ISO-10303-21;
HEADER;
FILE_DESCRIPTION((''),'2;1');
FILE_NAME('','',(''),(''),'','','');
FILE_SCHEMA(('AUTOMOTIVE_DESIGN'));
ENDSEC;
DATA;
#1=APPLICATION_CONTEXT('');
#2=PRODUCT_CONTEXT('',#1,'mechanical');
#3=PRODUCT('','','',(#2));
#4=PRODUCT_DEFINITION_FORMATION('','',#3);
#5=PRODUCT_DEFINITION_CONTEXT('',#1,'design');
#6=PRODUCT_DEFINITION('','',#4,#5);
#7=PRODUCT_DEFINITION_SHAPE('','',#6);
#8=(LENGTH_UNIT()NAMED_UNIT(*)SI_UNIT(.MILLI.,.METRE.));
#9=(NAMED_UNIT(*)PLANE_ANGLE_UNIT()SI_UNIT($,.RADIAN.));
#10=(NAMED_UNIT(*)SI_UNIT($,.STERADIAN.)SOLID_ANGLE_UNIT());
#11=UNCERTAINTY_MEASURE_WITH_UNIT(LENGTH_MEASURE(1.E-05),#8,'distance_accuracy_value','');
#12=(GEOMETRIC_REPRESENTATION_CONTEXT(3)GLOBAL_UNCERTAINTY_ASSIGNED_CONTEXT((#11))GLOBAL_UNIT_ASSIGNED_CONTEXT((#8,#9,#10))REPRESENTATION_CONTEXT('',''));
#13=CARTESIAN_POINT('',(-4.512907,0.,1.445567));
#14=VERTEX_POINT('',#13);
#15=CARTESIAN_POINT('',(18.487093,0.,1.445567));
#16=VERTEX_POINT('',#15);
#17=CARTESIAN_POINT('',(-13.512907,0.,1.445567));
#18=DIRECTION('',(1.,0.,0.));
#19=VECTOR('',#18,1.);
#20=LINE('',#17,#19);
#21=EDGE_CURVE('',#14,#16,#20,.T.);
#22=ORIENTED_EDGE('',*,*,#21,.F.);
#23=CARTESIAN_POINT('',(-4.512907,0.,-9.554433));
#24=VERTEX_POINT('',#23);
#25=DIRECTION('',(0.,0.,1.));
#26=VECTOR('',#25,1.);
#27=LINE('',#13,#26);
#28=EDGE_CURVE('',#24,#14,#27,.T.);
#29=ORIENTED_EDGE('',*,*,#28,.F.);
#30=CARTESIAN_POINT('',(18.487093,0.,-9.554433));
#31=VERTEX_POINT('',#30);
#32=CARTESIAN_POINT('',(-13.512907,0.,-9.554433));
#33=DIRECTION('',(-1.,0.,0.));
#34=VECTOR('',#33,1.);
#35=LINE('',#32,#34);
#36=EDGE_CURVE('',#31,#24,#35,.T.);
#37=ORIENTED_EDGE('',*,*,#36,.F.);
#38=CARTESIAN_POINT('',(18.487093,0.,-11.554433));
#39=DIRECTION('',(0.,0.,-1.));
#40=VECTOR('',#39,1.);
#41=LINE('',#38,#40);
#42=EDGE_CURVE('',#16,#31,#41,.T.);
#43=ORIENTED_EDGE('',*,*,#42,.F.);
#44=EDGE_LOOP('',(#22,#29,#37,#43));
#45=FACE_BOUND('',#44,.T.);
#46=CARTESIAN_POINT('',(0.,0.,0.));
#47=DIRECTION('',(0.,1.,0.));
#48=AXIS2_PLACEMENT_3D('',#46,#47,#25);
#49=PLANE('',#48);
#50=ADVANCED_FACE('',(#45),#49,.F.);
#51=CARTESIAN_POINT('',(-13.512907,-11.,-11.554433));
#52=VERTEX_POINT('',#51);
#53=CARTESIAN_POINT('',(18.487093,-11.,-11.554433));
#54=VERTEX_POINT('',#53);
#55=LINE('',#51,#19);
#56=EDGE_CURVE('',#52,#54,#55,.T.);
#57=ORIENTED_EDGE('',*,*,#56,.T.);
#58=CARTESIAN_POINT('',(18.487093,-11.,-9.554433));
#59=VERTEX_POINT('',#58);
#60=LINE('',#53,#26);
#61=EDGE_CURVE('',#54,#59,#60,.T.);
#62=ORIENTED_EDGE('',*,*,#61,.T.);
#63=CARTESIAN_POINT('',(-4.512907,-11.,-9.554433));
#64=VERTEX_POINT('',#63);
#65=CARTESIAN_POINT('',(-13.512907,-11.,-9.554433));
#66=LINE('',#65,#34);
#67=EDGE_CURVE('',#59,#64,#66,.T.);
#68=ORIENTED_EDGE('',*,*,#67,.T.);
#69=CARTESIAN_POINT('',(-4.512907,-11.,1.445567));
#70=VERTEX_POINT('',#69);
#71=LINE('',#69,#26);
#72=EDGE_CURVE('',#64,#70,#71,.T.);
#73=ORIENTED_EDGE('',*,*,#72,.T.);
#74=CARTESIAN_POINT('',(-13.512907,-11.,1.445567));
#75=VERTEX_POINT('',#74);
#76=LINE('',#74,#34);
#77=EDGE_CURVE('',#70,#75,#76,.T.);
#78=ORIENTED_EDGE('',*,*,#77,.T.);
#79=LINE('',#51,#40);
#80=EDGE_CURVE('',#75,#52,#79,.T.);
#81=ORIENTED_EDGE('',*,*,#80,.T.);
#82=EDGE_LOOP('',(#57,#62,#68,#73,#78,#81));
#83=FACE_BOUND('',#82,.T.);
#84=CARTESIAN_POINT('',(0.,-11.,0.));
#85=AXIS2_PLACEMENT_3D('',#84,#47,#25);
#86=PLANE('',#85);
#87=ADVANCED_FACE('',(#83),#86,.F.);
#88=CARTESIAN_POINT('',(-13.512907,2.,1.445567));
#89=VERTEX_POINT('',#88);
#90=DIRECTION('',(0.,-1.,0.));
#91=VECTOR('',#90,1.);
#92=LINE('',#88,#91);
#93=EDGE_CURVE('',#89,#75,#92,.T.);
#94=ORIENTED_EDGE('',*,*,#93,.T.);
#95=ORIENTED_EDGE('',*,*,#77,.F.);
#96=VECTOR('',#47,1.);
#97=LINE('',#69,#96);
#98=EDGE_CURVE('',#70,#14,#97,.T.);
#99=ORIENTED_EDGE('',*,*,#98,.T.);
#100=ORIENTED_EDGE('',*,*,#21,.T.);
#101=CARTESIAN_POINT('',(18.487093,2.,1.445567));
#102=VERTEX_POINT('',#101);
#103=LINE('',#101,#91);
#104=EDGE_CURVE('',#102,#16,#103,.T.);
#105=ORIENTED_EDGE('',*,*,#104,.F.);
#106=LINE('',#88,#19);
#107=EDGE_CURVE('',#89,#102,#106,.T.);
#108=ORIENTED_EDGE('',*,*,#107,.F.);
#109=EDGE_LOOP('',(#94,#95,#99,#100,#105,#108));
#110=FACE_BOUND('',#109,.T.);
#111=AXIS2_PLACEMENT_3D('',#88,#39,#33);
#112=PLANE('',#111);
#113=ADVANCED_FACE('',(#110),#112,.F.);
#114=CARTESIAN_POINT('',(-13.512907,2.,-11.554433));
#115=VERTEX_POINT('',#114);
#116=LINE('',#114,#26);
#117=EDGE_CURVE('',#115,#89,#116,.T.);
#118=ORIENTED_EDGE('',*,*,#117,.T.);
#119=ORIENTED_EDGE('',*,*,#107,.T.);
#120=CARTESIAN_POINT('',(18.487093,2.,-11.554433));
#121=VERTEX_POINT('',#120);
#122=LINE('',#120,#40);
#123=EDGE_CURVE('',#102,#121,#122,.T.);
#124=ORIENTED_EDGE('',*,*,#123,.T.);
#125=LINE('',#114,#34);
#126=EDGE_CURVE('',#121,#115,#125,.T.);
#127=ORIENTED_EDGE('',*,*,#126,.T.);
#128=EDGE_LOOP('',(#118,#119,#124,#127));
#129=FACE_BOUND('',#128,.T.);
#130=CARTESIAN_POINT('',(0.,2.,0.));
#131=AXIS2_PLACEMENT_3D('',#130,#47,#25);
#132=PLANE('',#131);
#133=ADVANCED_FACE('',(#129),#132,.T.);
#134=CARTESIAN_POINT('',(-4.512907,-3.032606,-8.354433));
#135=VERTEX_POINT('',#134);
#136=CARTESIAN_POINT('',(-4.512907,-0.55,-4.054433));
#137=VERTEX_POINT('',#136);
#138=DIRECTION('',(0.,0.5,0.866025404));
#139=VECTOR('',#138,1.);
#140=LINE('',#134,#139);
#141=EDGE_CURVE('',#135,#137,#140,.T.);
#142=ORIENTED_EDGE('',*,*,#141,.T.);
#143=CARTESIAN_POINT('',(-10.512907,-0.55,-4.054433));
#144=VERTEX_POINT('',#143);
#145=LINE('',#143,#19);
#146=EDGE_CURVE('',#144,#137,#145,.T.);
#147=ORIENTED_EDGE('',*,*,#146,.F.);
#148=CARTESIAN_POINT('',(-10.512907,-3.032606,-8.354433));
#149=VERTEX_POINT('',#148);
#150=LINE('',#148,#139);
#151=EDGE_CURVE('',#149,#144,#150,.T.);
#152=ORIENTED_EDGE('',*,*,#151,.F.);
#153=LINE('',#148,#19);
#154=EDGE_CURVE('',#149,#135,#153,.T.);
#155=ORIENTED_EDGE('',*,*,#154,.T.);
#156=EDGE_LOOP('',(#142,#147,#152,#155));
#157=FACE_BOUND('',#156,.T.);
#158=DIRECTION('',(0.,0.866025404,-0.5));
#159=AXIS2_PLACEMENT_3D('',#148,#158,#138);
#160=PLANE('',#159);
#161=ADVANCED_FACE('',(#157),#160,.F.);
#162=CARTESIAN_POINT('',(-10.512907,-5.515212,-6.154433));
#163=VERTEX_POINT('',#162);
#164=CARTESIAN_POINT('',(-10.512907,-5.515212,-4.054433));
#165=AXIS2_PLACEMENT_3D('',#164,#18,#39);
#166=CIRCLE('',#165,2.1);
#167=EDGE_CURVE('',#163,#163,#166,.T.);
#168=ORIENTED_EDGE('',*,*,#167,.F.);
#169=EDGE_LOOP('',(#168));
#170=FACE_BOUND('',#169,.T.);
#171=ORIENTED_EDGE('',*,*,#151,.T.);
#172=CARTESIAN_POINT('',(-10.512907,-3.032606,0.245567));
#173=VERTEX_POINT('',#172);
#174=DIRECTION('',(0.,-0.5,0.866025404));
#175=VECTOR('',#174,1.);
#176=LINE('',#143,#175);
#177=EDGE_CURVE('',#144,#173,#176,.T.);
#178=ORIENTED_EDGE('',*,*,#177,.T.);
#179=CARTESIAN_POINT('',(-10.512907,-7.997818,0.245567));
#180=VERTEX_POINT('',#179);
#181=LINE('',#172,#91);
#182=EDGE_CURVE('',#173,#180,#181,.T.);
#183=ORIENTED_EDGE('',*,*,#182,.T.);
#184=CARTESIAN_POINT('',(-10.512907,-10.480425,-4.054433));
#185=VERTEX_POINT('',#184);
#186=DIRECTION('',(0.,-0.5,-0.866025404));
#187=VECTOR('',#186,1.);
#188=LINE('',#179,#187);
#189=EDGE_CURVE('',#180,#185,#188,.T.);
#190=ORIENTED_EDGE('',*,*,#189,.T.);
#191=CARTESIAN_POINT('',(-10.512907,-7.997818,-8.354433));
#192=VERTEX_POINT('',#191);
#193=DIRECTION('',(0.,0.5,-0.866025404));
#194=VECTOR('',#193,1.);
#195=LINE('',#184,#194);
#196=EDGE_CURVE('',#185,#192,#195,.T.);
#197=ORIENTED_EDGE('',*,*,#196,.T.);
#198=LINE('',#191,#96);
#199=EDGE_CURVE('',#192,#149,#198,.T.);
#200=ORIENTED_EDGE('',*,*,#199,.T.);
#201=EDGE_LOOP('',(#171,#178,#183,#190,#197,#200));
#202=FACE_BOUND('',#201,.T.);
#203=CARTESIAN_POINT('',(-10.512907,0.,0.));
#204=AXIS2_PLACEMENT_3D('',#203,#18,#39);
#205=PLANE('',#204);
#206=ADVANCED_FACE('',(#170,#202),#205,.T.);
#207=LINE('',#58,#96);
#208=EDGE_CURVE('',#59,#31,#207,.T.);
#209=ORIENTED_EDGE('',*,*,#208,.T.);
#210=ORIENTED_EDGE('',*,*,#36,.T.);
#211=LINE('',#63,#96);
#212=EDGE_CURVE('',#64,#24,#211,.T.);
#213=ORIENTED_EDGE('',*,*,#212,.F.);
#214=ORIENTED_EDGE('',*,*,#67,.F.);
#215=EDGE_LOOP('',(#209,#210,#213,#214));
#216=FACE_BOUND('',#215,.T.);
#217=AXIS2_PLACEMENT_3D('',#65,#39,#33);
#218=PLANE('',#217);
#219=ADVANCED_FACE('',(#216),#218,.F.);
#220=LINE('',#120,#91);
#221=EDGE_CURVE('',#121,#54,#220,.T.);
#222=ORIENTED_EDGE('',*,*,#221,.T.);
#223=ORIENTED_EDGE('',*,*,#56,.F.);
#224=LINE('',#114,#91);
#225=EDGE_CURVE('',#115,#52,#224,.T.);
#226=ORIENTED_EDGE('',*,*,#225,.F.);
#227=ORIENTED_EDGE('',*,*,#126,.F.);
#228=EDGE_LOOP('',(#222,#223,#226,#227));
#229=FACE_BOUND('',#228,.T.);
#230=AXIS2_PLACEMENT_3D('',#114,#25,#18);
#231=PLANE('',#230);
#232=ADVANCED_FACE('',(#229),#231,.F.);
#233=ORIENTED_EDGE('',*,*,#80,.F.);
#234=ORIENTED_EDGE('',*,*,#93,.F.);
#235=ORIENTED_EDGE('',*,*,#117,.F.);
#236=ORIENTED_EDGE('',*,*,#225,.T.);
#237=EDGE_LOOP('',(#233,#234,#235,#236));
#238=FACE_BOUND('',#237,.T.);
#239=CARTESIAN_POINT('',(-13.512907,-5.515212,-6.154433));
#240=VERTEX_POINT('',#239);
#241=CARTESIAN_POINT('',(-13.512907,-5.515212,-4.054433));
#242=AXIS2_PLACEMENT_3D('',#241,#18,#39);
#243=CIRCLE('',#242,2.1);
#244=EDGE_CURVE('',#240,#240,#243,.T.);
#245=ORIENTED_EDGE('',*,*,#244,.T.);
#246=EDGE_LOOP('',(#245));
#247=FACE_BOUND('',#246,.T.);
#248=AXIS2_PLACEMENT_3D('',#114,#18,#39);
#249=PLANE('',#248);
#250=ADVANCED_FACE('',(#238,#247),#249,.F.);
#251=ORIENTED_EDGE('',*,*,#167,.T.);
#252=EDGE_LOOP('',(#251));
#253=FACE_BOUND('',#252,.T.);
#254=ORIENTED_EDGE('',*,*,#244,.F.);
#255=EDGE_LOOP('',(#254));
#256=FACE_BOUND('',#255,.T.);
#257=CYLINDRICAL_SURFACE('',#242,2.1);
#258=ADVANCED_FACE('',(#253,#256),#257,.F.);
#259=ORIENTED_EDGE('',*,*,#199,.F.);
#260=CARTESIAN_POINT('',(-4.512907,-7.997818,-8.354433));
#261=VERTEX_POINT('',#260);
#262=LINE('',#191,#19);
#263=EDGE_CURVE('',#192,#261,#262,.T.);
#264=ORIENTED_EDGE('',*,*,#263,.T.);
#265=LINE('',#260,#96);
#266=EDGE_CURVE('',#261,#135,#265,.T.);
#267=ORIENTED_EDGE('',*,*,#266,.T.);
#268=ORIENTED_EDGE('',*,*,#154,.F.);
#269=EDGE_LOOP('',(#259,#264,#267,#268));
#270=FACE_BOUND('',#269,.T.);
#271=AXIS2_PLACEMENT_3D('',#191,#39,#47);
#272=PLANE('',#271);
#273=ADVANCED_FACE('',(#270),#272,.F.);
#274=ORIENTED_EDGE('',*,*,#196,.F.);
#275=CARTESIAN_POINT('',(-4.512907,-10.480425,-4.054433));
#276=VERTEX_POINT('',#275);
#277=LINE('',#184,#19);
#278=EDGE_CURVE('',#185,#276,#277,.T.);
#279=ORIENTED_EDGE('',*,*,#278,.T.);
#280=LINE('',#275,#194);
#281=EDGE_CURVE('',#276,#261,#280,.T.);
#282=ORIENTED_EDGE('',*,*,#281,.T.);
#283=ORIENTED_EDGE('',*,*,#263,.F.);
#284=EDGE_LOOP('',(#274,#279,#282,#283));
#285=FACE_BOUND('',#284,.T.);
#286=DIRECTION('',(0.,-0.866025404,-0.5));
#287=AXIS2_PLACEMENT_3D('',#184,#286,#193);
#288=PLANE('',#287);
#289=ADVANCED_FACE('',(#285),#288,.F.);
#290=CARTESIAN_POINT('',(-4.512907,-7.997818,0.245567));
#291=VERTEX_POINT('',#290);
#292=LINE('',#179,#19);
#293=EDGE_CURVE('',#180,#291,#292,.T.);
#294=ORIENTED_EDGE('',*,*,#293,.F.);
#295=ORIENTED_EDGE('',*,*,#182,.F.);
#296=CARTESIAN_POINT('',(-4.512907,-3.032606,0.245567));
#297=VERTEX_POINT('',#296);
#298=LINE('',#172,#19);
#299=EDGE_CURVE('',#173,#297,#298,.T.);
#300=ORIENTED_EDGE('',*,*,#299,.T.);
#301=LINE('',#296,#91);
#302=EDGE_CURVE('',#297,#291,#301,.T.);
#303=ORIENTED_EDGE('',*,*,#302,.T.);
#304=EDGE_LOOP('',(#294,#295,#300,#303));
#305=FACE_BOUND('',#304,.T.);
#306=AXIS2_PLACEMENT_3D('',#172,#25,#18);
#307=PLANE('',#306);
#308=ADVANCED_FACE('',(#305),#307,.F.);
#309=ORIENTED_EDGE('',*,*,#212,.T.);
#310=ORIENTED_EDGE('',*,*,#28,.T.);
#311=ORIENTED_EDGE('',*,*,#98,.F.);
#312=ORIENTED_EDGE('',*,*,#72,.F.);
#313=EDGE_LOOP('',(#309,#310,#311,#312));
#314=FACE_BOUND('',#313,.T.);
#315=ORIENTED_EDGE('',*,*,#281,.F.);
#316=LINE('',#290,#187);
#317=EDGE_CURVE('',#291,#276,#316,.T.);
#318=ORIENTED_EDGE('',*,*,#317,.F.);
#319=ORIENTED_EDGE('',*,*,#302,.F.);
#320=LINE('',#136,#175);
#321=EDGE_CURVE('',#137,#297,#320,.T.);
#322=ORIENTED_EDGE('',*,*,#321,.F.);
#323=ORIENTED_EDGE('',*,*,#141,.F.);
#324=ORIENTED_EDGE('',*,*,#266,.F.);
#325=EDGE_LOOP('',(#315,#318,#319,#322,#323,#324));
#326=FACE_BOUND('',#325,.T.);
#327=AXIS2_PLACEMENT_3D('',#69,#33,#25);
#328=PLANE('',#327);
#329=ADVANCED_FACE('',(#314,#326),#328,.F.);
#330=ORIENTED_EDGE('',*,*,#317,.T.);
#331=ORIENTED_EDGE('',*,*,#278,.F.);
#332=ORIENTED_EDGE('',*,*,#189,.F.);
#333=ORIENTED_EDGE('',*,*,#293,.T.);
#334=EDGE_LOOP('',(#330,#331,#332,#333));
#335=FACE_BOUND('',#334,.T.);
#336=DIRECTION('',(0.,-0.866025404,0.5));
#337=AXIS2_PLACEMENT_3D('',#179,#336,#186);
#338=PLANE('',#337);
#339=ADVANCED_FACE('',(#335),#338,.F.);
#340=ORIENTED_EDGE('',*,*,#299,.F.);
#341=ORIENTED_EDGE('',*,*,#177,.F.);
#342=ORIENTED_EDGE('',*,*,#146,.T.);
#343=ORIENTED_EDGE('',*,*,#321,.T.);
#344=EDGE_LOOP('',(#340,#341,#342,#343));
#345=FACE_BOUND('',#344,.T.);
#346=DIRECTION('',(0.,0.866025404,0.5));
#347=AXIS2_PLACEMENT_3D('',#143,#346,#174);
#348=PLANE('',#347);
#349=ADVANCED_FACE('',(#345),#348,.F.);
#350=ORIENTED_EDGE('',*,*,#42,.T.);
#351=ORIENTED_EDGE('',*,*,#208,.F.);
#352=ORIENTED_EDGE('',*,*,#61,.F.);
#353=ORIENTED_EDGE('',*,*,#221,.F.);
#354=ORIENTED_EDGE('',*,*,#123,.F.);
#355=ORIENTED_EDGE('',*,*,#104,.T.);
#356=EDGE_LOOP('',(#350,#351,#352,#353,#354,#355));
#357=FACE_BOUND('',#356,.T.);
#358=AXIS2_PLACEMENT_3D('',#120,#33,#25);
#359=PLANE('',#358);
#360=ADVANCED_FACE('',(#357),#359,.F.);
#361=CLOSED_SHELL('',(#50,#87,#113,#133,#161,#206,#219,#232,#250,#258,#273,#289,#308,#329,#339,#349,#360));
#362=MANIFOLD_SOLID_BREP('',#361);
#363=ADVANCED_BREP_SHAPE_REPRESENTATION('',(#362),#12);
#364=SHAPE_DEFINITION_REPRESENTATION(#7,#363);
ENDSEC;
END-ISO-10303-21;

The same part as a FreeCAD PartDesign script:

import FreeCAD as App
import Part
import Sketcher

V = App.Vector
Q = App.Units.Quantity


def add_polygon(sketch, points):
    """Adds a closed chain of lines whose ends are joined by coincident constraints."""
    first, n = sketch.GeometryCount, len(points)
    for a, b in zip(points, points[1:] + points[:1]):
        sketch.addGeometry(Part.LineSegment(App.Vector(*a, 0), App.Vector(*b, 0)), False)
    for i in range(n):
        sketch.addConstraint(Sketcher.Constraint("Coincident", first + i, 2, first + (i + 1) % n, 1))

doc = App.newDocument("Part")
body = doc.addObject("PartDesign::Body", "Body")

sketch1 = body.newObject("Sketcher::SketchObject", "Sketch")
sketch1.AttachmentSupport = (doc.getObject("XZ_Plane"), [""])
sketch1.MapMode = "FlatFace"
add_polygon(sketch1, [(-14, -12), (-14, 1), (18, 1), (18, -12)])
sketch1.addConstraint(Sketcher.Constraint("Vertical", 0))
sketch1.addConstraint(Sketcher.Constraint("Horizontal", 1))
sketch1.addConstraint(Sketcher.Constraint("Vertical", 2))
sketch1.addConstraint(Sketcher.Constraint("Horizontal", 3))
sketch1.addConstraint(Sketcher.Constraint("DistanceX", 1, 1, 1, 2, Q("32 mm")))
sketch1.addConstraint(Sketcher.Constraint("DistanceY", 0, 1, 0, 2, Q("13 mm")))
sketch1.addConstraint(Sketcher.Constraint("DistanceX", 0, 2, -1, 1, Q("13.512907 mm")))
sketch1.addConstraint(Sketcher.Constraint("DistanceY", -1, 1, 0, 2, Q("1.445567 mm")))
pad1 = body.newObject("PartDesign::Pad", "Pad")
pad1.Profile = sketch1
pad1.Length = 2
pad1.Reversed = True

sketch2 = body.newObject("Sketcher::SketchObject", "Sketch001")
sketch2.AttachmentSupport = (doc.getObject("XZ_Plane"), [""])
sketch2.MapMode = "FlatFace"
add_polygon(sketch2, [(18.5, -11.6), (18.5, -9.6), (-13.5, -9.6), (-13.5, -11.6)])
sketch2.addConstraint(Sketcher.Constraint("Vertical", 0))
sketch2.addConstraint(Sketcher.Constraint("Horizontal", 1))
sketch2.addConstraint(Sketcher.Constraint("Vertical", 2))
sketch2.addConstraint(Sketcher.Constraint("Horizontal", 3))
sketch2.addConstraint(Sketcher.Constraint("DistanceX", 1, 2, 1, 1, Q("32 mm")))
sketch2.addConstraint(Sketcher.Constraint("DistanceY", 0, 1, 0, 2, Q("2 mm")))
sketch2.addConstraint(Sketcher.Constraint("DistanceX", -1, 1, 0, 2, Q("18.487093 mm")))
sketch2.addConstraint(Sketcher.Constraint("DistanceY", 0, 2, -1, 1, Q("9.554433 mm")))
pad2 = body.newObject("PartDesign::Pad", "Pad001")
pad2.Profile = sketch2
pad2.Length = 11

sketch3 = body.newObject("Sketcher::SketchObject", "Sketch002")
sketch3.AttachmentSupport = (doc.getObject("XZ_Plane"), [""])
sketch3.MapMode = "FlatFace"
add_polygon(sketch3, [(-14, 1), (-14, -10), (-5, -10), (-5, 1)])
sketch3.addConstraint(Sketcher.Constraint("Vertical", 0))
sketch3.addConstraint(Sketcher.Constraint("Horizontal", 1))
sketch3.addConstraint(Sketcher.Constraint("Vertical", 2))
sketch3.addConstraint(Sketcher.Constraint("Horizontal", 3))
sketch3.addConstraint(Sketcher.Constraint("DistanceX", 1, 1, 1, 2, Q("9 mm")))
sketch3.addConstraint(Sketcher.Constraint("DistanceY", 0, 2, 0, 1, Q("11 mm")))
sketch3.addConstraint(Sketcher.Constraint("DistanceX", 0, 2, -1, 1, Q("13.512907 mm")))
sketch3.addConstraint(Sketcher.Constraint("DistanceY", 0, 2, -1, 1, Q("9.554433 mm")))
pad3 = body.newObject("PartDesign::Pad", "Pad002")
pad3.Profile = sketch3
pad3.Length = 11

sketch4 = body.newObject("Sketcher::SketchObject", "Sketch003")
sketch4.AttachmentSupport = (doc.getObject("YZ_Plane"), [""])
sketch4.MapMode = "FlatFace"
sketch4.AttachmentOffset = App.Placement(V(0, 0, -4.512907), App.Rotation())
add_polygon(sketch4, [(-10.5, -4.1), (-8, -8.4), (-3, -8.4), (-0.6, -4.1), (-3, 0.2), (-8, 0.2)])
sketch4.addConstraint(Sketcher.Constraint("Horizontal", 1))
sketch4.addConstraint(Sketcher.Constraint("Horizontal", 4))
sketch4.addConstraint(Sketcher.Constraint("Parallel", 0, 3))
sketch4.addConstraint(Sketcher.Constraint("Parallel", 2, 5))
sketch4.addConstraint(Sketcher.Constraint("Horizontal", 2, 2, 5, 2))
sketch4.addConstraint(Sketcher.Constraint("Vertical", 1, 2, 3, 2))
sketch4.addConstraint(Sketcher.Constraint("Vertical", 0, 2, 4, 2))
sketch4.addConstraint(Sketcher.Constraint("Angle", 0, Q("-60 deg")))
sketch4.addConstraint(Sketcher.Constraint("DistanceY", 1, 2, 2, 2, Q("4.3 mm")))
sketch4.addConstraint(Sketcher.Constraint("DistanceX", 2, 2, -1, 1, Q("0.55 mm")))
sketch4.addConstraint(Sketcher.Constraint("DistanceX", 1, 1, 1, 2, Q("4.965212 mm")))
sketch4.addConstraint(Sketcher.Constraint("DistanceY", 0, 2, -1, 1, Q("8.354433 mm")))
pocket1 = body.newObject("PartDesign::Pocket", "Pocket")
pocket1.Profile = sketch4
pocket1.Length = 6

sketch5 = body.newObject("Sketcher::SketchObject", "Sketch004")
sketch5.AttachmentSupport = (doc.getObject("YZ_Plane"), [""])
sketch5.MapMode = "FlatFace"
sketch5.AttachmentOffset = App.Placement(V(0, 0, -10.512907), App.Rotation())
sketch5.addGeometry(Part.Circle(V(-5.5, -4.1, 0), V(0, 0, 1), 2.1), False)
sketch5.addConstraint(Sketcher.Constraint("Diameter", 0, Q("4.2 mm")))
sketch5.addConstraint(Sketcher.Constraint("DistanceX", 0, 3, -1, 1, Q("5.515212 mm")))
sketch5.addConstraint(Sketcher.Constraint("DistanceY", 0, 3, -1, 1, Q("4.054433 mm")))
pocket2 = body.newObject("PartDesign::Pocket", "Pocket001")
pocket2.Profile = sketch5
pocket2.Length = 3

doc.recompute()
